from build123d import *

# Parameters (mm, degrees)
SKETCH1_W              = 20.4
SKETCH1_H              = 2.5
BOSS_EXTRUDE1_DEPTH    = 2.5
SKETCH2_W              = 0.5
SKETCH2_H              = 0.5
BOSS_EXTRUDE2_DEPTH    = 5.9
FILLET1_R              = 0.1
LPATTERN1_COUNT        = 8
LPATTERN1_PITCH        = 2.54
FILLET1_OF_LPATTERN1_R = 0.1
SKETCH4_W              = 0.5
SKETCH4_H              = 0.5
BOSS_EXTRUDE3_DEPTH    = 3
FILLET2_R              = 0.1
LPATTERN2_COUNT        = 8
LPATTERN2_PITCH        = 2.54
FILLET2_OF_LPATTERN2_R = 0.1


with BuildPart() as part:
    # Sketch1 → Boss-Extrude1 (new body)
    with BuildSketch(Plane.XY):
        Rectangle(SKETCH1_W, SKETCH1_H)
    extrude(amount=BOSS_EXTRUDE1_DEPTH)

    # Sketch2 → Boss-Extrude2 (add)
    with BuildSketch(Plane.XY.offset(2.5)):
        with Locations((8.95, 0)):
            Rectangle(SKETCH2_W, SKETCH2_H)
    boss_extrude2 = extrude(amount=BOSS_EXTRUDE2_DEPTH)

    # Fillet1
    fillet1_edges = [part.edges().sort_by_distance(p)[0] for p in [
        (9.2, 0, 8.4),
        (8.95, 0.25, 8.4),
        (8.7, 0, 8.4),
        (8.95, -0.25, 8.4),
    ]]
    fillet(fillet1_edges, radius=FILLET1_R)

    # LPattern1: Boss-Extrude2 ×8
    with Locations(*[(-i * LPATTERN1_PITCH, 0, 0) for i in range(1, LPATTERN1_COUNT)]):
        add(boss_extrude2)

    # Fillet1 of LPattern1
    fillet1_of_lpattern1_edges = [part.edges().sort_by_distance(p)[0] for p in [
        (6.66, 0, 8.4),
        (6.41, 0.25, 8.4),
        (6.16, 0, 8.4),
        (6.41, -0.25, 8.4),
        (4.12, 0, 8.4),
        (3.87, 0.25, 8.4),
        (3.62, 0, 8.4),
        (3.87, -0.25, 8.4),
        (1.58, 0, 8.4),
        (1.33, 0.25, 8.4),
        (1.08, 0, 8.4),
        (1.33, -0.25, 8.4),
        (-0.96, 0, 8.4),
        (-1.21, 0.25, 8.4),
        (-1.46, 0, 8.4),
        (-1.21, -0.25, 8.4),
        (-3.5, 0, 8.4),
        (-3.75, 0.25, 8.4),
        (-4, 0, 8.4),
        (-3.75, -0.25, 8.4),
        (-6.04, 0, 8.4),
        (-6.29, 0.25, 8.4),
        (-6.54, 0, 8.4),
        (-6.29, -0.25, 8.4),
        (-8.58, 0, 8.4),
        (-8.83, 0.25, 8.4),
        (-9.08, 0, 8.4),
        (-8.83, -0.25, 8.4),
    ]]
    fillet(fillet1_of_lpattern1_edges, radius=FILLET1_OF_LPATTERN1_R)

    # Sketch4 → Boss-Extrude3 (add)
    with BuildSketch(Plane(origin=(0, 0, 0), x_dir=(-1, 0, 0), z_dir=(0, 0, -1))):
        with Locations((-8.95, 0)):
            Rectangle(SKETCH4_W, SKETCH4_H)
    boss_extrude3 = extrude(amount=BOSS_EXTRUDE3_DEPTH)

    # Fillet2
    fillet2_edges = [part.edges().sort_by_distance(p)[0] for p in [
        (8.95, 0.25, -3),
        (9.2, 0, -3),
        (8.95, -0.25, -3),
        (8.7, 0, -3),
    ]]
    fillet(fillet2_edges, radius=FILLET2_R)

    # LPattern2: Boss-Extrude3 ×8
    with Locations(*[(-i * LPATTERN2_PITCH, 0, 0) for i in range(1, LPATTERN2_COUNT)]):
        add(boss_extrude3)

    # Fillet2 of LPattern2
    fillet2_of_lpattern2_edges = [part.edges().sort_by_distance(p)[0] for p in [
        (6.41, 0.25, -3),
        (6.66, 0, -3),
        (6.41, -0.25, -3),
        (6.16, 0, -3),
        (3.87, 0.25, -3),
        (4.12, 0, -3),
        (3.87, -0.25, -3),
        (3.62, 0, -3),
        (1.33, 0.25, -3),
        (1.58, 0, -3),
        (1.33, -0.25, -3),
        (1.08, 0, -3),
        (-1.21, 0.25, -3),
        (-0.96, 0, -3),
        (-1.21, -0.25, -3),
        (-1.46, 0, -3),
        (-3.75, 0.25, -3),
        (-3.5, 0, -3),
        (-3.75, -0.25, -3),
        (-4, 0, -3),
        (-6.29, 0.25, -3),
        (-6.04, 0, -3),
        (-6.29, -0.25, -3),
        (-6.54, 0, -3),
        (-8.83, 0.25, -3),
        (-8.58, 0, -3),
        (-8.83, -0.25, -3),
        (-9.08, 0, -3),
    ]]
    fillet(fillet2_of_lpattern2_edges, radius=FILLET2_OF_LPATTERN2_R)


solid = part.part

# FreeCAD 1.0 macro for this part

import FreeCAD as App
import Part
import Sketcher
Q = App.Units.Quantity


def edges_at(feature, points):
    """Names of the edges that pass closest to the given points."""
    edges = feature.Shape.Edges
    near = lambda p: min(range(len(edges)), key=lambda i: edges[i].distToShape(Part.Vertex(*p))[0])
    return sorted({f"Edge{near(p) + 1}" for p in points})


def add_polygon(sketch, points):
    """Adds a closed chain of lines whose ends are joined by coincident constraints."""
    first, n = sketch.GeometryCount, len(points)
    for a, b in zip(points, points[1:] + points[:1]):
        sketch.addGeometry(Part.LineSegment(App.Vector(*a, 0), App.Vector(*b, 0)), False)
    for i in range(n):
        sketch.addConstraint(Sketcher.Constraint("Coincident", first + i, 2, first + (i + 1) % n, 1))

doc = App.newDocument("Part")
body = doc.addObject("PartDesign::Body", "Body")

# Sketch on XY plane
sketch1 = body.newObject("Sketcher::SketchObject", "Sketch")
sketch1.AttachmentSupport = (doc.getObject("XY_Plane"), [""])
sketch1.MapMode = "FlatFace"
add_polygon(sketch1, [(-10.2, 1.2), (-10.2, -1.2), (10.2, -1.2), (10.2, 1.2)])  # lines 0-3
sketch1.addConstraint([
    Sketcher.Constraint("Vertical", 0),
    Sketcher.Constraint("Horizontal", 1),
    Sketcher.Constraint("Vertical", 2),
    Sketcher.Constraint("Horizontal", 3),
    Sketcher.Constraint("Symmetric", 0, 2, 2, 2, -1, 1),
    Sketcher.Constraint("DistanceX", 1, 1, 1, 2, Q("20.4 mm")),
    Sketcher.Constraint("DistanceY", 0, 2, 0, 1, Q("2.5 mm")),
])
pad1 = body.newObject("PartDesign::Pad", "Pad")
pad1.Profile = sketch1
pad1.Length = 2.5

# Sketch on XY plane
sketch2 = body.newObject("Sketcher::SketchObject", "Sketch001")
sketch2.AttachmentSupport = (doc.getObject("XY_Plane"), [""])
sketch2.MapMode = "FlatFace"
sketch2.AttachmentOffset = App.Placement(App.Vector(0, 0, 2.5), App.Rotation())
add_polygon(sketch2, [(8.7, 0.2), (8.7, -0.2), (9.2, -0.2), (9.2, 0.2)])  # lines 0-3
sketch2.addConstraint([
    Sketcher.Constraint("Vertical", 0),
    Sketcher.Constraint("Horizontal", 1),
    Sketcher.Constraint("Vertical", 2),
    Sketcher.Constraint("Horizontal", 3),
    Sketcher.Constraint("Equal", 3, 0),
    Sketcher.Constraint("DistanceX", 1, 1, 1, 2, Q("0.5 mm")),
    Sketcher.Constraint("DistanceX", -1, 1, 0, 2, Q("8.7 mm")),
    Sketcher.Constraint("DistanceY", 0, 2, -1, 1, Q("0.25 mm")),
])
pad2 = body.newObject("PartDesign::Pad", "Pad001")
pad2.Profile = sketch2
pad2.Length = 5.9
doc.recompute()

fillet = body.newObject("PartDesign::Fillet", "Fillet")
fillet.Base = (pad2, edges_at(pad2, [
    (9.2, 0, 8.4),
    (8.95, 0.25, 8.4),
    (8.7, 0, 8.4),
    (8.95, -0.25, 8.4),
]))
fillet.Radius = 0.1
doc.recompute()

linearpattern = body.newObject("PartDesign::LinearPattern", "LinearPattern")
linearpattern.Originals = [pad2]
linearpattern.Direction = (doc.getObject("X_Axis"), [""])
linearpattern.Mode = "offset"
linearpattern.Offset = 2.54
linearpattern.Occurrences = 8
linearpattern.Reversed = True
body.Tip = linearpattern
doc.recompute()

fillet2 = body.newObject("PartDesign::Fillet", "Fillet001")
fillet2.Base = (linearpattern, edges_at(linearpattern, [
    (6.66, 0, 8.4),
    (6.41, 0.25, 8.4),
    (6.16, 0, 8.4),
    (6.41, -0.25, 8.4),
    (4.12, 0, 8.4),
    (3.87, 0.25, 8.4),
    (3.62, 0, 8.4),
    (3.87, -0.25, 8.4),
    (1.58, 0, 8.4),
    (1.33, 0.25, 8.4),
    (1.08, 0, 8.4),
    (1.33, -0.25, 8.4),
    (-0.96, 0, 8.4),
    (-1.21, 0.25, 8.4),
    (-1.46, 0, 8.4),
    (-1.21, -0.25, 8.4),
    (-3.5, 0, 8.4),
    (-3.75, 0.25, 8.4),
    (-4, 0, 8.4),
    (-3.75, -0.25, 8.4),
    (-6.04, 0, 8.4),
    (-6.29, 0.25, 8.4),
    (-6.54, 0, 8.4),
    (-6.29, -0.25, 8.4),
    (-8.58, 0, 8.4),
    (-8.83, 0.25, 8.4),
    (-9.08, 0, 8.4),
    (-8.83, -0.25, 8.4),
]))
fillet2.Radius = 0.1

# Sketch on XY plane
sketch3 = body.newObject("Sketcher::SketchObject", "Sketch002")
sketch3.AttachmentSupport = (doc.getObject("XY_Plane"), [""])
sketch3.MapMode = "FlatFace"
add_polygon(sketch3, [(9.2, 0.2), (9.2, -0.2), (8.7, -0.2), (8.7, 0.2)])  # lines 0-3
sketch3.addConstraint([
    Sketcher.Constraint("Vertical", 0),
    Sketcher.Constraint("Horizontal", 1),
    Sketcher.Constraint("Vertical", 2),
    Sketcher.Constraint("Horizontal", 3),
    Sketcher.Constraint("Equal", 3, 0),
    Sketcher.Constraint("DistanceX", 1, 2, 1, 1, Q("0.5 mm")),
    Sketcher.Constraint("DistanceX", -1, 1, 0, 2, Q("9.2 mm")),
    Sketcher.Constraint("DistanceY", 0, 2, -1, 1, Q("0.25 mm")),
])
pad3 = body.newObject("PartDesign::Pad", "Pad002")
pad3.Profile = sketch3
pad3.Length = 3
pad3.Reversed = True
doc.recompute()

fillet3 = body.newObject("PartDesign::Fillet", "Fillet002")
fillet3.Base = (pad3, edges_at(pad3, [
    (8.95, 0.25, -3),
    (9.2, 0, -3),
    (8.95, -0.25, -3),
    (8.7, 0, -3),
]))
fillet3.Radius = 0.1
doc.recompute()

linearpattern2 = body.newObject("PartDesign::LinearPattern", "LinearPattern001")
linearpattern2.Originals = [pad3]
linearpattern2.Direction = (doc.getObject("X_Axis"), [""])
linearpattern2.Mode = "offset"
linearpattern2.Offset = 2.54
linearpattern2.Occurrences = 8
linearpattern2.Reversed = True
body.Tip = linearpattern2
doc.recompute()

fillet4 = body.newObject("PartDesign::Fillet", "Fillet003")
fillet4.Base = (linearpattern2, edges_at(linearpattern2, [
    (6.41, 0.25, -3),
    (6.66, 0, -3),
    (6.41, -0.25, -3),
    (6.16, 0, -3),
    (3.87, 0.25, -3),
    (4.12, 0, -3),
    (3.87, -0.25, -3),
    (3.62, 0, -3),
    (1.33, 0.25, -3),
    (1.58, 0, -3),
    (1.33, -0.25, -3),
    (1.08, 0, -3),
    (-1.21, 0.25, -3),
    (-0.96, 0, -3),
    (-1.21, -0.25, -3),
    (-1.46, 0, -3),
    (-3.75, 0.25, -3),
    (-3.5, 0, -3),
    (-3.75, -0.25, -3),
    (-4, 0, -3),
    (-6.29, 0.25, -3),
    (-6.04, 0, -3),
    (-6.29, -0.25, -3),
    (-6.54, 0, -3),
    (-8.83, 0.25, -3),
    (-8.58, 0, -3),
    (-8.83, -0.25, -3),
    (-9.08, 0, -3),
]))
fillet4.Radius = 0.1

doc.recompute()
